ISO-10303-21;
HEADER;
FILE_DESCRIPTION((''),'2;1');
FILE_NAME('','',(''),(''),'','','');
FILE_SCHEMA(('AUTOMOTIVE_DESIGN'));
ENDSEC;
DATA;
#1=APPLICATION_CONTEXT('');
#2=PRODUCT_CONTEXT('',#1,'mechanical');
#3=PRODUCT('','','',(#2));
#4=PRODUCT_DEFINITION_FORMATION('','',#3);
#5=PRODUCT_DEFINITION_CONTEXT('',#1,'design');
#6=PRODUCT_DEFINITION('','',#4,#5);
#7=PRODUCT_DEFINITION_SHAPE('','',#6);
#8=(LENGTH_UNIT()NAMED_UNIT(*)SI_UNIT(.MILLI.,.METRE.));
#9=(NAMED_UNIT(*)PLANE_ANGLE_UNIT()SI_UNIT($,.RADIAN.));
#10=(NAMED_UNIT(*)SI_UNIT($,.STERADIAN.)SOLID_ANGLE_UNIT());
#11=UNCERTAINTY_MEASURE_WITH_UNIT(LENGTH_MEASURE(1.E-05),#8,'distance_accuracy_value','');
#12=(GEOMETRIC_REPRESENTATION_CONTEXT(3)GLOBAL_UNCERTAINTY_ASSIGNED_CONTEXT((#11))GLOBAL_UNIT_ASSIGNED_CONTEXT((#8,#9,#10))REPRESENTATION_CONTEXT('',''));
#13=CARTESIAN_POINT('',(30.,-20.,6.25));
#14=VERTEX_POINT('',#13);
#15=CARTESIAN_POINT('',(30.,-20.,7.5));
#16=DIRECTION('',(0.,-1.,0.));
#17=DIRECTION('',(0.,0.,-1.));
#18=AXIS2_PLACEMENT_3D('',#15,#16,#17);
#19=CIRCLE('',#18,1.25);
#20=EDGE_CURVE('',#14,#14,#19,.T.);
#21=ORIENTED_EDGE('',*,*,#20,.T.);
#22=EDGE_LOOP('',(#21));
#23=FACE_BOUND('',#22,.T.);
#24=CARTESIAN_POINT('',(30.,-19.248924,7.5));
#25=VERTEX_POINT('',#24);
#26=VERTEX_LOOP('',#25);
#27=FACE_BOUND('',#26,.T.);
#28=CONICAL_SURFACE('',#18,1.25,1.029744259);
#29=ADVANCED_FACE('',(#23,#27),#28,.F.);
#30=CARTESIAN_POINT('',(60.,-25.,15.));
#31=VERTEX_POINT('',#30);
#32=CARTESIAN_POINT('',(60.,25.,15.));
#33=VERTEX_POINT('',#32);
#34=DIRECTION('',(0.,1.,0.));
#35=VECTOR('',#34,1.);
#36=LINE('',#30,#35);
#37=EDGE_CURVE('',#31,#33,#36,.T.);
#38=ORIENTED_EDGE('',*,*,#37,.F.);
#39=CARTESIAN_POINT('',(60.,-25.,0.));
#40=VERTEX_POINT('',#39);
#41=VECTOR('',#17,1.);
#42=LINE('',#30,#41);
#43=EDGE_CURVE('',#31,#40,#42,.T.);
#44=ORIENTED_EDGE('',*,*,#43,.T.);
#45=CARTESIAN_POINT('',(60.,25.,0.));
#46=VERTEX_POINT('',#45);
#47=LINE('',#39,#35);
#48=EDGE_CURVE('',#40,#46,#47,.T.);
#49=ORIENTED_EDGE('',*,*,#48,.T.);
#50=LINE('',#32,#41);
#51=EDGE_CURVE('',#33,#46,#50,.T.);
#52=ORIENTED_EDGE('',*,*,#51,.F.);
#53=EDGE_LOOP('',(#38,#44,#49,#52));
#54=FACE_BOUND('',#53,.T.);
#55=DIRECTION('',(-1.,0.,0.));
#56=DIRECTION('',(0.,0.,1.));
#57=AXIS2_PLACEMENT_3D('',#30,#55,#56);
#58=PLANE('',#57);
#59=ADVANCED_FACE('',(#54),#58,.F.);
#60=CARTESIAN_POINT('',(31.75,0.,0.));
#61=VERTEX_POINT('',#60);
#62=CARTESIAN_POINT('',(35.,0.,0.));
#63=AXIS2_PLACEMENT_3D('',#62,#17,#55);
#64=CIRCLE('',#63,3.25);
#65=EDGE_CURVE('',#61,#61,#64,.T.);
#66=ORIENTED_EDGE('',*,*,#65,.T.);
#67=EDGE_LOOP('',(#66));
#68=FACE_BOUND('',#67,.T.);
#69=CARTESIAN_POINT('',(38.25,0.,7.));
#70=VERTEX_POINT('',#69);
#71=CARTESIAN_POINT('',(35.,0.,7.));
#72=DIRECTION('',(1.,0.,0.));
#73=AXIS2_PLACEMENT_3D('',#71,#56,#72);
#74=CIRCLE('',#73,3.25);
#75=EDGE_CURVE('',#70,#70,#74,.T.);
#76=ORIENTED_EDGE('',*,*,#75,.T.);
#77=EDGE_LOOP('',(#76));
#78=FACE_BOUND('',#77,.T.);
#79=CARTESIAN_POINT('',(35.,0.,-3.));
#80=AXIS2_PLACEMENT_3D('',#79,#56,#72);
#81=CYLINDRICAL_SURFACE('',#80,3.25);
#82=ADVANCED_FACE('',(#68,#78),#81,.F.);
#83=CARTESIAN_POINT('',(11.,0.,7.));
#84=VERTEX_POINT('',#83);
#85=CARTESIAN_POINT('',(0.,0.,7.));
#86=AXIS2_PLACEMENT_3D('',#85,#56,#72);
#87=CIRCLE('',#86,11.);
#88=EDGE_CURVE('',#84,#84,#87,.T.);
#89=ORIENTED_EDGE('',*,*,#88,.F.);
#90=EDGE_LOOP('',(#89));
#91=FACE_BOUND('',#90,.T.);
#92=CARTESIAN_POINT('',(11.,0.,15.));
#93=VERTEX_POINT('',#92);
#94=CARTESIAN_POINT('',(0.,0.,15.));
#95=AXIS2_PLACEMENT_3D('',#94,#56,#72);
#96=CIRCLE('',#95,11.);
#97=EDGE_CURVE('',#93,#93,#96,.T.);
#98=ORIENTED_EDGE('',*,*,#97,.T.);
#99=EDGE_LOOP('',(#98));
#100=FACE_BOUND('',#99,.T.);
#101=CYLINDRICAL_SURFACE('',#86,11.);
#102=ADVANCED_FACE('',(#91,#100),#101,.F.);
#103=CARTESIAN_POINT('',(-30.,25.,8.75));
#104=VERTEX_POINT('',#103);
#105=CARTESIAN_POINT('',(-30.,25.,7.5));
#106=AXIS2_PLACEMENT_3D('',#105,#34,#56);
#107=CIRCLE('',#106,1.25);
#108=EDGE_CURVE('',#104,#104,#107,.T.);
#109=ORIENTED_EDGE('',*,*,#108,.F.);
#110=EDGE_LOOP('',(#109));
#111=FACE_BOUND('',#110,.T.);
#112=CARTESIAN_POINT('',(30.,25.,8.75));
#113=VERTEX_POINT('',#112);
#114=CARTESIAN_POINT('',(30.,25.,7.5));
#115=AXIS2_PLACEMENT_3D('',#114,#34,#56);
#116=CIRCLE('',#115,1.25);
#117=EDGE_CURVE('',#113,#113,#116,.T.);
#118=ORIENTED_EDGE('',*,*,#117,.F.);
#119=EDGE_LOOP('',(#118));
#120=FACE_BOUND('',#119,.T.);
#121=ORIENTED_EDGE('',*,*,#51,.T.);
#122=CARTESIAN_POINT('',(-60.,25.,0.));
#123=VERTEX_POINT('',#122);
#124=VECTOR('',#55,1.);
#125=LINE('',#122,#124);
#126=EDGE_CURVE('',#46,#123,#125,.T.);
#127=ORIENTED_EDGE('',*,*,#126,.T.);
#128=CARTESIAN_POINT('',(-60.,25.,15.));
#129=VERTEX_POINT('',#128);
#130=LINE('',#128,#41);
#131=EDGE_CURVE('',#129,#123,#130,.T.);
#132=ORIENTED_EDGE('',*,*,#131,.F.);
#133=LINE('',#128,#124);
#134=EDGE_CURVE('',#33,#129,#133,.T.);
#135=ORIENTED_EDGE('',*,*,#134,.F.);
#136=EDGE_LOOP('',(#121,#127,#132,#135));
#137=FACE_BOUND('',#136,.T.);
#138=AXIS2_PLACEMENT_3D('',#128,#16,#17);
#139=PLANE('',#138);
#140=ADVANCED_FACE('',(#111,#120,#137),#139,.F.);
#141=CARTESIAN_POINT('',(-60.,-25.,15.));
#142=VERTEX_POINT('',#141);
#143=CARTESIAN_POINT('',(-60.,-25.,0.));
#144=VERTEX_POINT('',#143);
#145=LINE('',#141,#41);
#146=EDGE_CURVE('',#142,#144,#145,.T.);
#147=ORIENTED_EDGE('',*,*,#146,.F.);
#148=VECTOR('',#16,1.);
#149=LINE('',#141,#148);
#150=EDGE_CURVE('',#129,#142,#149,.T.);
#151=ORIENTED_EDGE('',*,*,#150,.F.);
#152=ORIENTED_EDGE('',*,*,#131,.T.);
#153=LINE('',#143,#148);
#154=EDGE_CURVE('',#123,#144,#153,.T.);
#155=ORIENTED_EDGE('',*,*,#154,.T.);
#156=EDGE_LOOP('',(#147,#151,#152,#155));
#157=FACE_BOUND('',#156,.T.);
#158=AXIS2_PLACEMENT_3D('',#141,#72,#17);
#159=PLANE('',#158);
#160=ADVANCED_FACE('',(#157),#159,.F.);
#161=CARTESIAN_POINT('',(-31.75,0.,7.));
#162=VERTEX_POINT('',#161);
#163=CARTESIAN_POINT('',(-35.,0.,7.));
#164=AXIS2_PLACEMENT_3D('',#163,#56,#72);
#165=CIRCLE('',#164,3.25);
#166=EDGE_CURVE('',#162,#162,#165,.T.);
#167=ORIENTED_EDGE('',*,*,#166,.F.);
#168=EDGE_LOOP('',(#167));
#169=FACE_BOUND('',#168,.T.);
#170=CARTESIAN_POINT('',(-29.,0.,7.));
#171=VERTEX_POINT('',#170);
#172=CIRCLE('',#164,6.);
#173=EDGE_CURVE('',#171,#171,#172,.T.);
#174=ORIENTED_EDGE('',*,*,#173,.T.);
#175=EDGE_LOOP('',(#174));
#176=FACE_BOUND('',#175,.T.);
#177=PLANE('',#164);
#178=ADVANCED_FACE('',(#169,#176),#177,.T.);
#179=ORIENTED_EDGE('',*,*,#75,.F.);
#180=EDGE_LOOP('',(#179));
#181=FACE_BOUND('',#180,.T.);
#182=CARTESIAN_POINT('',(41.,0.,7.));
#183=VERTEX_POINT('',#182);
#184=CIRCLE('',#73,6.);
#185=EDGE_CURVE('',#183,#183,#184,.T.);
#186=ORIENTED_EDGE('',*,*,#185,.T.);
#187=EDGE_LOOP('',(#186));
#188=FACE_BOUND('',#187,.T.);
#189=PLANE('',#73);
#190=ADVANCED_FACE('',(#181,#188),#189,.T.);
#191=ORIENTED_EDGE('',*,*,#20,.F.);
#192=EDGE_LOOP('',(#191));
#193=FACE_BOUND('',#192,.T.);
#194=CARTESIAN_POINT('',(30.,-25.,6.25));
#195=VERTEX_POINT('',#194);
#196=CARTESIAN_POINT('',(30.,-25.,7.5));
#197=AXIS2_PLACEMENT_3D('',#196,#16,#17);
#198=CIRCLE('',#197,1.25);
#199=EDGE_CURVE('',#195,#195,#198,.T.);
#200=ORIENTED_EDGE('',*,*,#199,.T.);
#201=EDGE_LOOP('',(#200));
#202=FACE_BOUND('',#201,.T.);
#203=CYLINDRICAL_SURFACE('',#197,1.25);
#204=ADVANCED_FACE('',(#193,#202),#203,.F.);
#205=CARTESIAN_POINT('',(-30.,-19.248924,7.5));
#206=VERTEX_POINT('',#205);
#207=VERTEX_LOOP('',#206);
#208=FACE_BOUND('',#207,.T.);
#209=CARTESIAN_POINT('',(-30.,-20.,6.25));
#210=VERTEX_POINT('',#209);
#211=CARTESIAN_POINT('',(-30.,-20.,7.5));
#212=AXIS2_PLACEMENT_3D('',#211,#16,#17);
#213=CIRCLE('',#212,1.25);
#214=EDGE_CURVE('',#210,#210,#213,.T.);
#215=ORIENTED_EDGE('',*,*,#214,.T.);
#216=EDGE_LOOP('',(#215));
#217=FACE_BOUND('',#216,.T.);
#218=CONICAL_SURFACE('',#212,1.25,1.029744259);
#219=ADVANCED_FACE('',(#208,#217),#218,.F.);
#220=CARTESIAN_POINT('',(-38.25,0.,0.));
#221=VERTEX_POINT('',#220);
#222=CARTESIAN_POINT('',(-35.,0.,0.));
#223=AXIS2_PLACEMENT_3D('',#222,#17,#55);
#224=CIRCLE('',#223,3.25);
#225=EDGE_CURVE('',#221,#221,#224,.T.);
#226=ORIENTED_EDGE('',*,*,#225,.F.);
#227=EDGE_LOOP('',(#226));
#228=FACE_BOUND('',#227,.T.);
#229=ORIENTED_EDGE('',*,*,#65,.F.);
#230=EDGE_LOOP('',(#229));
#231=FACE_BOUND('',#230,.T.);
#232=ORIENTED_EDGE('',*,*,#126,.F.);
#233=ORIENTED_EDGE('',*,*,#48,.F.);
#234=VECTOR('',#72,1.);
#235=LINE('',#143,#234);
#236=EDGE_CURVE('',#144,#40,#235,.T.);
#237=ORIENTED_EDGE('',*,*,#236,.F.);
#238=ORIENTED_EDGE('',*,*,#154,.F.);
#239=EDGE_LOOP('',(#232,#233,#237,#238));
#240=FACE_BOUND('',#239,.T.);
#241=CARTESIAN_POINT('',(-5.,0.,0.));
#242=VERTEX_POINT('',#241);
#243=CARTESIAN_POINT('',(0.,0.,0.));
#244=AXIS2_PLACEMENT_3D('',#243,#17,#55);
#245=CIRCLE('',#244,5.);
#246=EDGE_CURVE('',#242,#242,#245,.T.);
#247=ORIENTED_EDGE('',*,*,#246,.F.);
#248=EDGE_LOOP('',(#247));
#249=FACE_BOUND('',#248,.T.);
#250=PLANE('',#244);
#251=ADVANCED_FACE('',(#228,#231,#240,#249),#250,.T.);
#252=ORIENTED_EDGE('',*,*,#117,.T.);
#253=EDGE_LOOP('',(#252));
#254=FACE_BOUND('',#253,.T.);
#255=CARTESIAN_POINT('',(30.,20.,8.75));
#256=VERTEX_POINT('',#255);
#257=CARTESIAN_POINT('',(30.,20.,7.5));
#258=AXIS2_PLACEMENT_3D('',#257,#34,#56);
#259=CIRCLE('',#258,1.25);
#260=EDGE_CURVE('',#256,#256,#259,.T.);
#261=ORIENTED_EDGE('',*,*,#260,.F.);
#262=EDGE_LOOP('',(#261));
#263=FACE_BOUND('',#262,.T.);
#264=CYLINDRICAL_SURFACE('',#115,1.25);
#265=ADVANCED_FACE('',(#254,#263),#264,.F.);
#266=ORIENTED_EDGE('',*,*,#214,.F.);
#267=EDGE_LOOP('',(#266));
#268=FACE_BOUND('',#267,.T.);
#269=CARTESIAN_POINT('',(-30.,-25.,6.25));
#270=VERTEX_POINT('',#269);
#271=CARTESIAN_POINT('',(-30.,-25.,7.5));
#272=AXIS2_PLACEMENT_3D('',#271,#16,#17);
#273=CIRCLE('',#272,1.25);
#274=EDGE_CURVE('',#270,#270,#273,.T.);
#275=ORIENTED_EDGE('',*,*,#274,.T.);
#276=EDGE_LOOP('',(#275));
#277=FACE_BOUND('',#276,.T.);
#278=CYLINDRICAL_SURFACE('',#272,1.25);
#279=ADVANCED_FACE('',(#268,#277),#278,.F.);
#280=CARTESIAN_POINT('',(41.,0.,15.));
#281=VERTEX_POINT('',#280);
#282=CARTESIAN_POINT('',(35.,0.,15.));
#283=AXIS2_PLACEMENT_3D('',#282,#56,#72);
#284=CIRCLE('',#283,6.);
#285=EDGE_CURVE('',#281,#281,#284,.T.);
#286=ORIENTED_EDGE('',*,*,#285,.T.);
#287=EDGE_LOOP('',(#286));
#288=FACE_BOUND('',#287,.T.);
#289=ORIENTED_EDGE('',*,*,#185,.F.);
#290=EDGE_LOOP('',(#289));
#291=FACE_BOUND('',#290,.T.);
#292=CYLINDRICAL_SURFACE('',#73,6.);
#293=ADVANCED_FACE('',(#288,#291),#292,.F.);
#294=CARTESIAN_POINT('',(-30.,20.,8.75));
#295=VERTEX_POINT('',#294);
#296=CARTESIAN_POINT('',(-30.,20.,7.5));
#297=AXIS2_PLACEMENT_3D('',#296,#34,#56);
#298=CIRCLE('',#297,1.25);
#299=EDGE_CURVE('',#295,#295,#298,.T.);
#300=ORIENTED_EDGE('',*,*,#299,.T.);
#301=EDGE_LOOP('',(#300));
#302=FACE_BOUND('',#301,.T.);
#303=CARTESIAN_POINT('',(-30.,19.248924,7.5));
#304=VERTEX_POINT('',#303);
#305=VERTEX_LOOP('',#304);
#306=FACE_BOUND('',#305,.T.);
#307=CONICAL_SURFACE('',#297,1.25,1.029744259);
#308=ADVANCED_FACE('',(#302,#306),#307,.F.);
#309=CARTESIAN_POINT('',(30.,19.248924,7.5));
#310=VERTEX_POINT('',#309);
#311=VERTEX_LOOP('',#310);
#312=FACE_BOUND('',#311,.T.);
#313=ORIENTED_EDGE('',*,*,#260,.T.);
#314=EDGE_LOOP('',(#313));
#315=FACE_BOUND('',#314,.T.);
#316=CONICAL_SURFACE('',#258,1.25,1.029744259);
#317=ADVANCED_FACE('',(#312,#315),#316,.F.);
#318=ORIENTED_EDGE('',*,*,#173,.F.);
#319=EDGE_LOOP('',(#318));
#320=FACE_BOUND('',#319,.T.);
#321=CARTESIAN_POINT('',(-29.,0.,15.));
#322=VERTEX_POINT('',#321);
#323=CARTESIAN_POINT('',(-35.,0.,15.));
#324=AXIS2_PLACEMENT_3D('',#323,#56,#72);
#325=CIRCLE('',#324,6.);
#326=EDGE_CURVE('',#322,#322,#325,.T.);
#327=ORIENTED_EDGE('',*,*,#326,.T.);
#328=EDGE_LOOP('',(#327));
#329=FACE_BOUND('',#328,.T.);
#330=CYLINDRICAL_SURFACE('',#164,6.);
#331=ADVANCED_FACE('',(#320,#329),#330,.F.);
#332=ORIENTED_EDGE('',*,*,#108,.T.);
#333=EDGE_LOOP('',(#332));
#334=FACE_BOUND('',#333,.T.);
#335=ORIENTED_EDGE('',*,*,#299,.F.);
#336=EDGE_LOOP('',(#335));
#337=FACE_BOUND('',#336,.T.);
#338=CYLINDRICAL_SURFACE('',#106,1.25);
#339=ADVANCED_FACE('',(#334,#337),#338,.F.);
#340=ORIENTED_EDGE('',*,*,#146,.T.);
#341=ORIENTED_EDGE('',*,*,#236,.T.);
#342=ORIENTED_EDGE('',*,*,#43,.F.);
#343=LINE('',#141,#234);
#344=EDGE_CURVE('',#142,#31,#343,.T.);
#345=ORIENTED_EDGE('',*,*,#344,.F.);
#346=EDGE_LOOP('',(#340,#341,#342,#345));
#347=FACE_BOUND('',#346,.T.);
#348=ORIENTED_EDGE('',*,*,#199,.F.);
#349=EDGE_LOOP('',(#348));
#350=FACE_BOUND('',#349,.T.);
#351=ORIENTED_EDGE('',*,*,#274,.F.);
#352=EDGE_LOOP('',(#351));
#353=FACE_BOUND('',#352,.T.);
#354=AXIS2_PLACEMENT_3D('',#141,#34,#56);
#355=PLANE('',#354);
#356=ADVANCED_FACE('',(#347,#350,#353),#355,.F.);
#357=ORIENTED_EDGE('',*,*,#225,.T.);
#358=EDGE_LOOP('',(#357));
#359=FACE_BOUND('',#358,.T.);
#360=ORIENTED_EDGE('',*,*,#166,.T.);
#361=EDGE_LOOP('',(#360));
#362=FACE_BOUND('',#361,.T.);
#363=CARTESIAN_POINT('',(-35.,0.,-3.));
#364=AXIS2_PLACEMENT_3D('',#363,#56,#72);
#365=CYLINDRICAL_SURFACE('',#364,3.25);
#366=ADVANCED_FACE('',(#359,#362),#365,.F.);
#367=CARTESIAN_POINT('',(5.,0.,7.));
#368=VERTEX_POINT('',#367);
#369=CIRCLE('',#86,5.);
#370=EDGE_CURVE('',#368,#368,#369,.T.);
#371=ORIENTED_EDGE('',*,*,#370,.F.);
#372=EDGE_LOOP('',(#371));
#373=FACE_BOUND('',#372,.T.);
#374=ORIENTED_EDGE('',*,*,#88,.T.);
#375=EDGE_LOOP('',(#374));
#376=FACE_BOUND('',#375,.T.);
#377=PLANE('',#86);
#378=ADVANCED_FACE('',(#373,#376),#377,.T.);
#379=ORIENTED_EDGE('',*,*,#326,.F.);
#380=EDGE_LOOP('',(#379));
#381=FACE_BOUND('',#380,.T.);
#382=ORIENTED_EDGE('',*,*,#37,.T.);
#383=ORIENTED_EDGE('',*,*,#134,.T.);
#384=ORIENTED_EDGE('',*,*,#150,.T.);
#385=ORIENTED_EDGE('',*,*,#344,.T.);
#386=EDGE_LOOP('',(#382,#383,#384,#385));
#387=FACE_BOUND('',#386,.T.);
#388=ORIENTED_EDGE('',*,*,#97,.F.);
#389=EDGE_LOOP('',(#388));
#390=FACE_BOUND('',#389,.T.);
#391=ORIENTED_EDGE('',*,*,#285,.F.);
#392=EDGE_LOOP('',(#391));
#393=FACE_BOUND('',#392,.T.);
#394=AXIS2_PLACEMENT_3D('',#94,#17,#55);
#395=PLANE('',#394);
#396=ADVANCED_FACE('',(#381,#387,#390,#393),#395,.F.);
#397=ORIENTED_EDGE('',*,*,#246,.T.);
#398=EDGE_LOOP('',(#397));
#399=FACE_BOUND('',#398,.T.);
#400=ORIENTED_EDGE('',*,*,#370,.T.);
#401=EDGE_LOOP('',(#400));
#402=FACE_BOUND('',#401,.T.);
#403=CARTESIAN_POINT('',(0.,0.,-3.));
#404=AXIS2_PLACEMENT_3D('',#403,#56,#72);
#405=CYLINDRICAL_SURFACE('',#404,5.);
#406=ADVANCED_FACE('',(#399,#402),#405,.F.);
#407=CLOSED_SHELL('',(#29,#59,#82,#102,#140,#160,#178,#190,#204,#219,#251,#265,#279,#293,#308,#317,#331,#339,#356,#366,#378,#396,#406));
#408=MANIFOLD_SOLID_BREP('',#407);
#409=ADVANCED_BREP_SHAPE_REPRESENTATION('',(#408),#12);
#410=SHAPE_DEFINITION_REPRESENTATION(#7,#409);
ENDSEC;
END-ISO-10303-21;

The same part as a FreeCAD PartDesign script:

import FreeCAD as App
import Part
import Sketcher
Q = App.Units.Quantity

doc = App.newDocument("Part")
body = doc.addObject("PartDesign::Body", "Body")

sketch1 = doc.addObject("Sketcher::SketchObject", "Sketch")
body.addObject(sketch1)
sketch1.AttachmentSupport = (doc.XY_Plane, [""])
sketch1.MapMode = "FlatFace"
sketch1.addGeometry([
    Part.LineSegment(App.Vector(-60, 25, 0), App.Vector(-60, -25, 0)),
    Part.LineSegment(App.Vector(-60, -25, 0), App.Vector(60, -25, 0)),
    Part.LineSegment(App.Vector(60, -25, 0), App.Vector(60, 25, 0)),
    Part.LineSegment(App.Vector(60, 25, 0), App.Vector(-60, 25, 0)),
], False)
sketch1.addConstraint([
    Sketcher.Constraint("Coincident", 0, 2, 1, 1),
    Sketcher.Constraint("Coincident", 1, 2, 2, 1),
    Sketcher.Constraint("Coincident", 2, 2, 3, 1),
    Sketcher.Constraint("Coincident", 3, 2, 0, 1),
    Sketcher.Constraint("Vertical", 0),
    Sketcher.Constraint("Horizontal", 1),
    Sketcher.Constraint("Vertical", 2),
    Sketcher.Constraint("Horizontal", 3),
    Sketcher.Constraint("Symmetric", 0, 2, 2, 2, -1, 1),
    Sketcher.Constraint("DistanceX", 1, 1, 1, 2, Q("120 mm")),
    Sketcher.Constraint("DistanceY", 0, 2, 0, 1, Q("50 mm")),
])
pad1 = doc.addObject("PartDesign::Pad", "Pad")
body.addObject(pad1)
pad1.Profile = sketch1
pad1.Length = 15

sketch2 = doc.addObject("Sketcher::SketchObject", "Sketch001")
body.addObject(sketch2)
sketch2.AttachmentSupport = (doc.XY_Plane, [""])
sketch2.MapMode = "FlatFace"
sketch2.AttachmentOffset = App.Placement(App.Vector(0, 0, 15), App.Rotation())
sketch2.addGeometry([
    Part.Circle(App.Vector(-35, 0, 0), App.Vector(0, 0, 1), 6),
    Part.Circle(App.Vector(35, 0, 0), App.Vector(0, 0, 1), 6),
], False)
sketch2.addConstraint([
    Sketcher.Constraint("Equal", 0, 1),
    Sketcher.Constraint("Symmetric", 0, 3, 1, 3, -1, 1),
    Sketcher.Constraint("PointOnObject", 0, 3, -1),
    Sketcher.Constraint("Diameter", 0, Q("12 mm")),
    Sketcher.Constraint("DistanceX", 0, 3, -1, 1, Q("35 mm")),
])
pocket1 = doc.addObject("PartDesign::Pocket", "Pocket")
body.addObject(pocket1)
pocket1.Profile = sketch2
pocket1.Length = 8

sketch3 = doc.addObject("Sketcher::SketchObject", "Sketch002")
body.addObject(sketch3)
sketch3.AttachmentSupport = (doc.XY_Plane, [""])
sketch3.MapMode = "FlatFace"
sketch3.AttachmentOffset = App.Placement(App.Vector(0, 0, 15), App.Rotation())
sketch3.addGeometry(Part.Circle(App.Vector(0, 0, 0), App.Vector(0, 0, 1), 11), False)
sketch3.addConstraint([
    Sketcher.Constraint("Coincident", 0, 3, -1, 1),
    Sketcher.Constraint("Diameter", 0, Q("22 mm")),
])
pocket2 = doc.addObject("PartDesign::Pocket", "Pocket001")
body.addObject(pocket2)
pocket2.Profile = sketch3
pocket2.Length = 8

sketch4 = doc.addObject("Sketcher::SketchObject", "Sketch003")
body.addObject(sketch4)
sketch4.AttachmentSupport = (doc.XY_Plane, [""])
sketch4.MapMode = "FlatFace"
sketch4.AttachmentOffset = App.Placement(App.Vector(0, 0, 7), App.Rotation())
sketch4.addGeometry([
    Part.Circle(App.Vector(-35, 0, 0), App.Vector(0, 0, 1), 3.2),
    Part.Circle(App.Vector(35, 0, 0), App.Vector(0, 0, 1), 3.2),
], False)
sketch4.addConstraint([
    Sketcher.Constraint("Equal", 0, 1),
    Sketcher.Constraint("Symmetric", 0, 3, 1, 3, -1, 1),
    Sketcher.Constraint("PointOnObject", 0, 3, -1),
    Sketcher.Constraint("Diameter", 0, Q("6.5 mm")),
    Sketcher.Constraint("DistanceX", 0, 3, -1, 1, Q("35 mm")),
])
pocket3 = doc.addObject("PartDesign::Pocket", "Pocket002")
body.addObject(pocket3)
pocket3.Profile = sketch4
pocket3.Length = 10

sketch5 = doc.addObject("Sketcher::SketchObject", "Sketch004")
body.addObject(sketch5)
sketch5.AttachmentSupport = (doc.XY_Plane, [""])
sketch5.MapMode = "FlatFace"
sketch5.AttachmentOffset = App.Placement(App.Vector(0, 0, 7), App.Rotation())
sketch5.addGeometry(Part.Circle(App.Vector(0, 0, 0), App.Vector(0, 0, 1), 5), False)
sketch5.addConstraint([
    Sketcher.Constraint("Coincident", 0, 3, -1, 1),
    Sketcher.Constraint("Diameter", 0, Q("10 mm")),
])
pocket4 = doc.addObject("PartDesign::Pocket", "Pocket003")
body.addObject(pocket4)
pocket4.Profile = sketch5
pocket4.Length = 10

sketch6 = doc.addObject("Sketcher::SketchObject", "Sketch005")
body.addObject(sketch6)
sketch6.AttachmentSupport = (doc.XZ_Plane, [""])
sketch6.MapMode = "FlatFace"
sketch6.AttachmentOffset = App.Placement(App.Vector(0, 0, -25), App.Rotation())
sketch6.addGeometry([
    Part.Circle(App.Vector(30, 7.5, 0), App.Vector(0, 0, 1), 1.2),
    Part.Circle(App.Vector(-30, 7.5, 0), App.Vector(0, 0, 1), 1.2),
], False)
sketch6.addConstraint([
    Sketcher.Constraint("Equal", 0, 1),
    Sketcher.Constraint("Symmetric", 0, 3, 1, 3, -2),
    Sketcher.Constraint("Diameter", 0, Q("2.5 mm")),
    Sketcher.Constraint("DistanceX", -1, 1, 0, 3, Q("30 mm")),
    Sketcher.Constraint("DistanceY", -1, 1, 0, 3, Q("7.5 mm")),
])
doc.recompute()
hole = doc.addObject("PartDesign::Hole", "Hole")
body.addObject(hole)
hole.Profile = sketch6
hole.ThreadType = "None"
hole.Diameter = 2.5
hole.DepthType = "Dimension"
hole.Depth = 5
hole.DrillPoint = "Angled"
hole.DrillPointAngle = 118
hole.Reversed = True

sketch7 = doc.addObject("Sketcher::SketchObject", "Sketch006")
body.addObject(sketch7)
sketch7.AttachmentSupport = (doc.XZ_Plane, [""])
sketch7.MapMode = "FlatFace"
sketch7.AttachmentOffset = App.Placement(App.Vector(0, 0, 25), App.Rotation())
sketch7.addGeometry([
    Part.Circle(App.Vector(30, 7.5, 0), App.Vector(0, 0, 1), 1.2),
    Part.Circle(App.Vector(-30, 7.5, 0), App.Vector(0, 0, 1), 1.2),
], False)
sketch7.addConstraint([
    Sketcher.Constraint("Equal", 0, 1),
    Sketcher.Constraint("Symmetric", 0, 3, 1, 3, -2),
    Sketcher.Constraint("Diameter", 0, Q("2.5 mm")),
    Sketcher.Constraint("DistanceX", -1, 1, 0, 3, Q("30 mm")),
    Sketcher.Constraint("DistanceY", -1, 1, 0, 3, Q("7.5 mm")),
])
doc.recompute()
hole2 = doc.addObject("PartDesign::Hole", "Hole001")
body.addObject(hole2)
hole2.Profile = sketch7
hole2.ThreadType = "None"
hole2.Diameter = 2.5
hole2.DepthType = "Dimension"
hole2.Depth = 5
hole2.DrillPoint = "Angled"
hole2.DrillPointAngle = 118

doc.recompute()
